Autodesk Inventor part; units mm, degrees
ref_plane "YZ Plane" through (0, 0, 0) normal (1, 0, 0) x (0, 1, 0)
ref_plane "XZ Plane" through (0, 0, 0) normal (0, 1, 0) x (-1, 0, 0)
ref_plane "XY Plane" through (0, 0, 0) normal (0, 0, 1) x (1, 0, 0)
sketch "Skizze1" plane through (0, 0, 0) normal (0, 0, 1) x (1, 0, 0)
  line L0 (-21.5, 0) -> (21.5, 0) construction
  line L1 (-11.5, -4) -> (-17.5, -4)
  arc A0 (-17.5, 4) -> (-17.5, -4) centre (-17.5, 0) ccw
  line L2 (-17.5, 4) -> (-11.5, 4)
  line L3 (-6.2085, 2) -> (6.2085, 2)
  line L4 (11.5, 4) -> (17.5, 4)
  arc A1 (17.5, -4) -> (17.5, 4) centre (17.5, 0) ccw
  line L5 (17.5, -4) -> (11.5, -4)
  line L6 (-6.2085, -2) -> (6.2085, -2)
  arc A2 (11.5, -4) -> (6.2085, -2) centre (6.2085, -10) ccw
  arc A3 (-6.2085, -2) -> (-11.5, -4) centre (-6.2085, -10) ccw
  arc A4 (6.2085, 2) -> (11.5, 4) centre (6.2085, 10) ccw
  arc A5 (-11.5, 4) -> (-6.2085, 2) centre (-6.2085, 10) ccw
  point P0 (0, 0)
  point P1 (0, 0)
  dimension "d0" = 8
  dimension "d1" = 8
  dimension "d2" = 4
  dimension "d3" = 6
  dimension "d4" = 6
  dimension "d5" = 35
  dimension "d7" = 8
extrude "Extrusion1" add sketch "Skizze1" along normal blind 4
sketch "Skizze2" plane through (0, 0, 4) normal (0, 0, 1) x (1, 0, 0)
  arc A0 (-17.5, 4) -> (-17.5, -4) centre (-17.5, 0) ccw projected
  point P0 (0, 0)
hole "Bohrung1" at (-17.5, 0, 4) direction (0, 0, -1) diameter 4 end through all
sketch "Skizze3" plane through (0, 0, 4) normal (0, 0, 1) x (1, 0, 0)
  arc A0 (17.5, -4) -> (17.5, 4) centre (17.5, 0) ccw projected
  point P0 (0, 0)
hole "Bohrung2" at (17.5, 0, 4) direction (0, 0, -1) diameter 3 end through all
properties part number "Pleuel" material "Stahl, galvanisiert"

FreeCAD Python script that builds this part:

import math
import FreeCAD as App
import Part
import Sketcher
from FreeCAD import Vector
Q = App.Units.Quantity

doc = App.newDocument("Part")
params = doc.addObject("Spreadsheet::Sheet", "Params")
for row, (alias, value) in enumerate([
    ("sketch1_radius", "8 mm"),
    ("sketch1_radius2", "4 mm"),
    ("sketch1_width", "6 mm"),
    ("pad1_length", "4 mm"),
    ("sketch2_diameter", "4 mm"),
    ("hole_diameter", "4 mm"),
    ("sketch3_diameter", "3 mm"),
    ("hole2_diameter", "3 mm"),
], start=1):
    params.set(f"A{row}", alias)
    params.set(f"B{row}", "=" + value)
    params.setAlias(f"B{row}", alias)

body = doc.addObject("PartDesign::Body", "Body")

# Sketch on XY plane
sketch1 = doc.addObject("Sketcher::SketchObject", "Sketch")
body.addObject(sketch1)
sketch1.AttachmentSupport = (doc.XY_Plane, [""])
sketch1.MapMode = "FlatFace"
sketch1.addGeometry(Part.LineSegment(Vector(-17.5, -4, 0), Vector(-11.5, -4, 0)), False)
sketch1.addGeometry(Part.ArcOfCircle(Part.Circle(Vector(-6.2085, -10, 0), Vector(0, 0, 1), 8), math.radians(90), math.radians(131.409608)), False)
sketch1.addGeometry(Part.LineSegment(Vector(-6.2085, -2, 0), Vector(6.2085, -2, 0)), False)
sketch1.addGeometry(Part.ArcOfCircle(Part.Circle(Vector(6.2085, -10, 0), Vector(0, 0, 1), 7.999998), math.radians(48.590392), math.radians(90)), False)
sketch1.addGeometry(Part.LineSegment(Vector(11.5, -4, 0), Vector(17.5, -4, 0)), False)
sketch1.addGeometry(Part.ArcOfCircle(Part.Circle(Vector(17.5, 0, 0), Vector(0, 0, 1), 4), math.radians(-90), math.radians(90)), False)
sketch1.addGeometry(Part.LineSegment(Vector(17.5, 4, 0), Vector(11.5, 4, 0)), False)
sketch1.addGeometry(Part.ArcOfCircle(Part.Circle(Vector(6.2085, 10, 0), Vector(0, 0, 1), 8), math.radians(-90), math.radians(-48.590392)), False)
sketch1.addGeometry(Part.LineSegment(Vector(6.2085, 2, 0), Vector(-6.2085, 2, 0)), False)
sketch1.addGeometry(Part.ArcOfCircle(Part.Circle(Vector(-6.2085, 10, 0), Vector(0, 0, 1), 7.999998), math.radians(-131.409608), math.radians(-90)), False)
sketch1.addGeometry(Part.LineSegment(Vector(-11.5, 4, 0), Vector(-17.5, 4, 0)), False)
sketch1.addGeometry(Part.ArcOfCircle(Part.Circle(Vector(-17.5, 0, 0), Vector(0, 0, 1), 4), math.radians(90), math.radians(270)), False)
sketch1.addConstraint(Sketcher.Constraint("Coincident", 0, 2, 1, 2))
sketch1.addConstraint(Sketcher.Constraint("Tangent", 1, 1, 2, 1))
sketch1.addConstraint(Sketcher.Constraint("Tangent", 2, 2, 3, 2))
sketch1.addConstraint(Sketcher.Constraint("Coincident", 3, 1, 4, 1))
sketch1.addConstraint(Sketcher.Constraint("Tangent", 4, 2, 5, 1))
sketch1.addConstraint(Sketcher.Constraint("Tangent", 5, 2, 6, 1))
sketch1.addConstraint(Sketcher.Constraint("Coincident", 6, 2, 7, 2))
sketch1.addConstraint(Sketcher.Constraint("Tangent", 7, 1, 8, 1))
sketch1.addConstraint(Sketcher.Constraint("Tangent", 8, 2, 9, 2))
sketch1.addConstraint(Sketcher.Constraint("Coincident", 9, 1, 10, 1))
sketch1.addConstraint(Sketcher.Constraint("Tangent", 10, 2, 11, 1))
sketch1.addConstraint(Sketcher.Constraint("Tangent", 11, 2, 0, 1))
sketch1.addConstraint(Sketcher.Constraint("Horizontal", 0))
sketch1.addConstraint(Sketcher.Constraint("Horizontal", 2))
sketch1.addConstraint(Sketcher.Constraint("Horizontal", 4))
sketch1.addConstraint(Sketcher.Constraint("Horizontal", 6))
sketch1.addConstraint(Sketcher.Constraint("Horizontal", 8))
sketch1.addConstraint(Sketcher.Constraint("Horizontal", 10))
sketch1.addConstraint(Sketcher.Constraint("Equal", 1, 3))
sketch1.addConstraint(Sketcher.Constraint("Equal", 3, 7))
sketch1.addConstraint(Sketcher.Constraint("Equal", 7, 9))
sketch1.addConstraint(Sketcher.Constraint("Equal", 5, 11))
sketch1.addConstraint(Sketcher.Constraint("Symmetric", 1, 3, 7, 3, -1, 1))
sketch1.addConstraint(Sketcher.Constraint("Symmetric", 5, 3, 11, 3, -1, 1))
sketch1.addConstraint(Sketcher.Constraint("Symmetric", 0, 2, 3, 1, -2))
sketch1.addConstraint(Sketcher.Constraint("Vertical", 1, 3, 9, 3))
sketch1.addConstraint(Sketcher.Constraint("Radius", 1, Q("8 mm")))
sketch1.addConstraint(Sketcher.Constraint("Radius", 5, Q("4 mm")))
sketch1.addConstraint(Sketcher.Constraint("DistanceX", 0, 1, 0, 2, Q("6 mm")))
sketch1.addConstraint(Sketcher.Constraint("DistanceX", 11, 3, 5, 3, Q("35 mm")))
sketch1.addConstraint(Sketcher.Constraint("DistanceY", 1, 3, 0, 2, Q("6 mm")))
sketch1.setExpression("Constraints[26]", "Params.sketch1_radius")
sketch1.setExpression("Constraints[27]", "Params.sketch1_radius2")
sketch1.setExpression("Constraints[28]", "Params.sketch1_width")
pad1 = doc.addObject("PartDesign::Pad", "Pad")
body.addObject(pad1)
pad1.Profile = sketch1
pad1.setExpression("Length", "Params.pad1_length")

# Sketch on XY plane
sketch2 = doc.addObject("Sketcher::SketchObject", "Sketch001")
body.addObject(sketch2)
sketch2.AttachmentSupport = (doc.XY_Plane, [""])
sketch2.MapMode = "FlatFace"
sketch2.AttachmentOffset = App.Placement(Vector(0, 0, 4), App.Rotation())
sketch2.addGeometry(Part.Circle(Vector(-17.5, 0, 0), Vector(0, 0, 1), 2), False)
sketch2.addConstraint(Sketcher.Constraint("PointOnObject", 0, 3, -1))
sketch2.addConstraint(Sketcher.Constraint("Diameter", 0, Q("4 mm")))
sketch2.addConstraint(Sketcher.Constraint("DistanceX", 0, 3, -1, 1, Q("17.5 mm")))
sketch2.setExpression("Constraints[1]", "Params.sketch2_diameter")
doc.recompute()
hole = doc.addObject("PartDesign::Hole", "Hole")
body.addObject(hole)
hole.Profile = sketch2
hole.ThreadType = "None"
hole.setExpression("Diameter", "Params.hole_diameter")
hole.DepthType = "ThroughAll"

# Sketch on XY plane
sketch3 = doc.addObject("Sketcher::SketchObject", "Sketch002")
body.addObject(sketch3)
sketch3.AttachmentSupport = (doc.XY_Plane, [""])
sketch3.MapMode = "FlatFace"
sketch3.AttachmentOffset = App.Placement(Vector(0, 0, 4), App.Rotation())
sketch3.addGeometry(Part.Circle(Vector(17.5, 0, 0), Vector(0, 0, 1), 1.5), False)
sketch3.addConstraint(Sketcher.Constraint("PointOnObject", 0, 3, -1))
sketch3.addConstraint(Sketcher.Constraint("Diameter", 0, Q("3 mm")))
sketch3.addConstraint(Sketcher.Constraint("DistanceX", -1, 1, 0, 3, Q("17.5 mm")))
sketch3.setExpression("Constraints[1]", "Params.sketch3_diameter")
doc.recompute()
hole2 = doc.addObject("PartDesign::Hole", "Hole001")
body.addObject(hole2)
hole2.Profile = sketch3
hole2.ThreadType = "None"
hole2.setExpression("Diameter", "Params.hole2_diameter")
hole2.DepthType = "ThroughAll"

doc.recompute()
